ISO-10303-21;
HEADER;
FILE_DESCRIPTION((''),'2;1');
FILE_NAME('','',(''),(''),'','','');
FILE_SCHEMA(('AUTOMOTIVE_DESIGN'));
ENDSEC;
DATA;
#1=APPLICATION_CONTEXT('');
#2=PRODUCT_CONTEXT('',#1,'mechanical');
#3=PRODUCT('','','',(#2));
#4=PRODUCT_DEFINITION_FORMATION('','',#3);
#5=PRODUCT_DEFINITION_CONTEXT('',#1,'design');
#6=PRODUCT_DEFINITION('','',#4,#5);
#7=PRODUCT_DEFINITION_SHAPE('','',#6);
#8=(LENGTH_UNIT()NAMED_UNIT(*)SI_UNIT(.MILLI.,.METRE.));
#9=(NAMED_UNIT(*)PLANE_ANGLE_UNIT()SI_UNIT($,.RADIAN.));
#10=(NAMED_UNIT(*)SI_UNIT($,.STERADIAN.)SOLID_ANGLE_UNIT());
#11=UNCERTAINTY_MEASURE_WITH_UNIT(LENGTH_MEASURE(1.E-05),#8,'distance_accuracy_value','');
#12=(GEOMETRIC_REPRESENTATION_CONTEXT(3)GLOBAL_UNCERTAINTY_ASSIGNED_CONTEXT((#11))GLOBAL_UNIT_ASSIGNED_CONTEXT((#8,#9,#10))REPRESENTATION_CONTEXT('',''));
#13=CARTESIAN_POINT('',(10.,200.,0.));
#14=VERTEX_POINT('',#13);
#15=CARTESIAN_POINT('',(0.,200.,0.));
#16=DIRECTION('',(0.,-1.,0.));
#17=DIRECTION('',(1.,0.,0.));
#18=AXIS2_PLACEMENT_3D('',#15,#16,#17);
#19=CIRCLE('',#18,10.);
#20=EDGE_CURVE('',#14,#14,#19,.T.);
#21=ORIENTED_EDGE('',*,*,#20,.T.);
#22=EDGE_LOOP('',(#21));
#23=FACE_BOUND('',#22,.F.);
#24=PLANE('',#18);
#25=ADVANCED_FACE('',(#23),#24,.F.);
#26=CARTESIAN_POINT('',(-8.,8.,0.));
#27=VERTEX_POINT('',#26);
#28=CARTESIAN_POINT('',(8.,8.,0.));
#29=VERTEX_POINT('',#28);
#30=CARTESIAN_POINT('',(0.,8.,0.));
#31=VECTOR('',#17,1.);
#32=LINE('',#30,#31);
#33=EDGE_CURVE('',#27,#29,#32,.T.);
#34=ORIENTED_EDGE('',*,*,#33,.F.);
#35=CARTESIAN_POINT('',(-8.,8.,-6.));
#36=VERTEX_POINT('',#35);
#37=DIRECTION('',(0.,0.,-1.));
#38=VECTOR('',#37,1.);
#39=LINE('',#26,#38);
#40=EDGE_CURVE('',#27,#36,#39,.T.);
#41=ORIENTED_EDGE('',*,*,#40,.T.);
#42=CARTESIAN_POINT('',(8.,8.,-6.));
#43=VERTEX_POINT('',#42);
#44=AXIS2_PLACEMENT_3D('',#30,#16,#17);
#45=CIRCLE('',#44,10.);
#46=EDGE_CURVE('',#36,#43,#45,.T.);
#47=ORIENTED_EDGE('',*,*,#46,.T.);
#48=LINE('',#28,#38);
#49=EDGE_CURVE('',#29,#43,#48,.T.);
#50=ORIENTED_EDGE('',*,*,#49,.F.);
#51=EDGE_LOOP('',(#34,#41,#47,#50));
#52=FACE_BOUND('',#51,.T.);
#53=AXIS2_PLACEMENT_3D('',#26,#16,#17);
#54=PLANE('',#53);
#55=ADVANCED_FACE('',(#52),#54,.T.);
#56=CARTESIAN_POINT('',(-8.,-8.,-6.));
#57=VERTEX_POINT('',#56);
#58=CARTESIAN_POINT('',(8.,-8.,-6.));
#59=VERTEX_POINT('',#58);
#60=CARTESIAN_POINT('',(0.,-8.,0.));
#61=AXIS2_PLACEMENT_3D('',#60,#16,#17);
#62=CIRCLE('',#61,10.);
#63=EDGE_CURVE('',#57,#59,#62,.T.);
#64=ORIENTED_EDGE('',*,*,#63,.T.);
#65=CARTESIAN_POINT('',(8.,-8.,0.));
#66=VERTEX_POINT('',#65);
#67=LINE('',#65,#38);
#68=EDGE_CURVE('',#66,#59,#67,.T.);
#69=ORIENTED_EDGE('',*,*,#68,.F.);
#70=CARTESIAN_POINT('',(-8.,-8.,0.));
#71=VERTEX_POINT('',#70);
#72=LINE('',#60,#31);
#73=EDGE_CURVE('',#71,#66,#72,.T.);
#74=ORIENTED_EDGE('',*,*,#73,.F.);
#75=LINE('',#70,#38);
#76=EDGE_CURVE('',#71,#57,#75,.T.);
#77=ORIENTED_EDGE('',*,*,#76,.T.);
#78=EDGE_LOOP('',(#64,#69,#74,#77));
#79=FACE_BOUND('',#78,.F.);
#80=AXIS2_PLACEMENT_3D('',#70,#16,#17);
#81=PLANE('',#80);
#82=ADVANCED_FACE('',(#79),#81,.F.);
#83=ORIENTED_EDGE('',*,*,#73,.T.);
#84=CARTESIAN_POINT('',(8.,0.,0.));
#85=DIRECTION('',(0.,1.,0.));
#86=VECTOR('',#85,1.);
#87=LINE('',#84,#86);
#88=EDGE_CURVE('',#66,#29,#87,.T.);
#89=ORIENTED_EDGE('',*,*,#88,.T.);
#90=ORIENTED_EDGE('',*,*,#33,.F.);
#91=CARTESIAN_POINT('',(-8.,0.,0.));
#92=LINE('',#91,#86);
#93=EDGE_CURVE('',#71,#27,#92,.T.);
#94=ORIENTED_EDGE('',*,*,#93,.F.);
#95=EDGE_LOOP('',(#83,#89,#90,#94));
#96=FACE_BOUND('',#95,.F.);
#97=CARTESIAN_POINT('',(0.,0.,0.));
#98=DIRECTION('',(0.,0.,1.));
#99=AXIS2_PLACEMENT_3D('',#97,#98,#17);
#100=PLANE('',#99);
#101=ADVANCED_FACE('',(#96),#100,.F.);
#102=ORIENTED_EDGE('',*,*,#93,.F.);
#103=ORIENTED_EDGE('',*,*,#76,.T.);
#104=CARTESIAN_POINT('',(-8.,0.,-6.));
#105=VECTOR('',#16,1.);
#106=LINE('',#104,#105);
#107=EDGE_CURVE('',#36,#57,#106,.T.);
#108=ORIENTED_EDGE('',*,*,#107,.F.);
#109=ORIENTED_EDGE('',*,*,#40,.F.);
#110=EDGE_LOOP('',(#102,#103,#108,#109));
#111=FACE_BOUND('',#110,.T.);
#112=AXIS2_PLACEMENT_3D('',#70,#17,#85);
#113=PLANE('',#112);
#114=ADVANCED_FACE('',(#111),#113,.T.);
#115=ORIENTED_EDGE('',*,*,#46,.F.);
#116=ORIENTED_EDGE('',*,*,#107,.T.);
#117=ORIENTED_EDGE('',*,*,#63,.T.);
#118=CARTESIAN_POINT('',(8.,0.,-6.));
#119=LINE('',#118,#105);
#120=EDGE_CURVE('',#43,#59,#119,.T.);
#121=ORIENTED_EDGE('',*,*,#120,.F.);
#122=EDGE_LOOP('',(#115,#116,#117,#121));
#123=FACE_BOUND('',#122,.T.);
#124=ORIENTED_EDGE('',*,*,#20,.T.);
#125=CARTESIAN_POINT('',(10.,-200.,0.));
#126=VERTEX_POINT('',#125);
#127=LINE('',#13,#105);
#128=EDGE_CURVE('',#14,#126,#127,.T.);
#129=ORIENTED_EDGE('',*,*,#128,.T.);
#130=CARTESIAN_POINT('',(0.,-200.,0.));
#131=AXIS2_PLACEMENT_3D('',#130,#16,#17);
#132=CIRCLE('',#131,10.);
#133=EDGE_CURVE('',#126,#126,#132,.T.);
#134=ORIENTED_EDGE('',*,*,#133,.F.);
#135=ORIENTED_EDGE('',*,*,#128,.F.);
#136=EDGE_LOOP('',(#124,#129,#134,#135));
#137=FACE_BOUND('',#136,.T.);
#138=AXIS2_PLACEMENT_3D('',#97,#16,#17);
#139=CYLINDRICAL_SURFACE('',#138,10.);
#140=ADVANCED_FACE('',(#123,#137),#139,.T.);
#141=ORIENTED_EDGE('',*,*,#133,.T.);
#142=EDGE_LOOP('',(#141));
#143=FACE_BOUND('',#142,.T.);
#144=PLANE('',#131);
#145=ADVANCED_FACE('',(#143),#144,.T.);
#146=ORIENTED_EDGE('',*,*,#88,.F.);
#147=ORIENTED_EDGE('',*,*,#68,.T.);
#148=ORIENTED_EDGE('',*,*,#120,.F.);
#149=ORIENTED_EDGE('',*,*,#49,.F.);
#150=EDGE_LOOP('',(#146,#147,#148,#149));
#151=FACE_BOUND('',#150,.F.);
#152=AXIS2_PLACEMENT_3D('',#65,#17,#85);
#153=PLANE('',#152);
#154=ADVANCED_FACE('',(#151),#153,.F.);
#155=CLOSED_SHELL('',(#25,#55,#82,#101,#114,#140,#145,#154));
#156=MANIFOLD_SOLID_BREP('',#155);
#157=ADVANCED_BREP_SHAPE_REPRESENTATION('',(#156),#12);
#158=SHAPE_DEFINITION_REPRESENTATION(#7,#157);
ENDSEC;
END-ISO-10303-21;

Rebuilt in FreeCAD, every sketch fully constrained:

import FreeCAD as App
import Part
import Sketcher
Q = App.Units.Quantity

doc = App.newDocument("Part")
body = doc.addObject("PartDesign::Body", "Body")

# Sketch on XZ plane
sketch1 = body.newObject("Sketcher::SketchObject", "Sketch")
sketch1.AttachmentSupport = (doc.getObject("XZ_Plane"), [""])
sketch1.MapMode = "FlatFace"
sketch1.addGeometry(Part.Circle(App.Vector(0, 0, 0), App.Vector(0, 0, 1), 10), False)
sketch1.addConstraint([
    Sketcher.Constraint("Coincident", 0, 3, -1, 1),
    Sketcher.Constraint("Diameter", 0, Q("20 mm")),
])
pad1 = body.newObject("PartDesign::Pad", "Pad")
pad1.Profile = sketch1
pad1.Type = "TwoLengths"
pad1.Length = 200
pad1.Length2 = 200

# Sketch on XY plane
sketch2 = body.newObject("Sketcher::SketchObject", "Sketch001")
sketch2.AttachmentSupport = (doc.getObject("XY_Plane"), [""])
sketch2.MapMode = "FlatFace"
sketch2.addGeometry([
    Part.LineSegment(App.Vector(-8, 8, 0), App.Vector(-8, -8, 0)),
    Part.LineSegment(App.Vector(-8, -8, 0), App.Vector(8, -8, 0)),
    Part.LineSegment(App.Vector(8, -8, 0), App.Vector(8, 8, 0)),
    Part.LineSegment(App.Vector(8, 8, 0), App.Vector(-8, 8, 0)),
], False)
sketch2.addConstraint([
    Sketcher.Constraint("Coincident", 0, 2, 1, 1),
    Sketcher.Constraint("Coincident", 1, 2, 2, 1),
    Sketcher.Constraint("Coincident", 2, 2, 3, 1),
    Sketcher.Constraint("Coincident", 3, 2, 0, 1),
    Sketcher.Constraint("Vertical", 0),
    Sketcher.Constraint("Horizontal", 1),
    Sketcher.Constraint("Vertical", 2),
    Sketcher.Constraint("Horizontal", 3),
    Sketcher.Constraint("Symmetric", 0, 2, 2, 2, -1, 1),
    Sketcher.Constraint("Equal", 3, 0),
    Sketcher.Constraint("DistanceX", 1, 1, 1, 2, Q("16 mm")),
])
pocket1 = body.newObject("PartDesign::Pocket", "Pocket")
pocket1.Profile = sketch2
pocket1.Length = 25

doc.recompute()
